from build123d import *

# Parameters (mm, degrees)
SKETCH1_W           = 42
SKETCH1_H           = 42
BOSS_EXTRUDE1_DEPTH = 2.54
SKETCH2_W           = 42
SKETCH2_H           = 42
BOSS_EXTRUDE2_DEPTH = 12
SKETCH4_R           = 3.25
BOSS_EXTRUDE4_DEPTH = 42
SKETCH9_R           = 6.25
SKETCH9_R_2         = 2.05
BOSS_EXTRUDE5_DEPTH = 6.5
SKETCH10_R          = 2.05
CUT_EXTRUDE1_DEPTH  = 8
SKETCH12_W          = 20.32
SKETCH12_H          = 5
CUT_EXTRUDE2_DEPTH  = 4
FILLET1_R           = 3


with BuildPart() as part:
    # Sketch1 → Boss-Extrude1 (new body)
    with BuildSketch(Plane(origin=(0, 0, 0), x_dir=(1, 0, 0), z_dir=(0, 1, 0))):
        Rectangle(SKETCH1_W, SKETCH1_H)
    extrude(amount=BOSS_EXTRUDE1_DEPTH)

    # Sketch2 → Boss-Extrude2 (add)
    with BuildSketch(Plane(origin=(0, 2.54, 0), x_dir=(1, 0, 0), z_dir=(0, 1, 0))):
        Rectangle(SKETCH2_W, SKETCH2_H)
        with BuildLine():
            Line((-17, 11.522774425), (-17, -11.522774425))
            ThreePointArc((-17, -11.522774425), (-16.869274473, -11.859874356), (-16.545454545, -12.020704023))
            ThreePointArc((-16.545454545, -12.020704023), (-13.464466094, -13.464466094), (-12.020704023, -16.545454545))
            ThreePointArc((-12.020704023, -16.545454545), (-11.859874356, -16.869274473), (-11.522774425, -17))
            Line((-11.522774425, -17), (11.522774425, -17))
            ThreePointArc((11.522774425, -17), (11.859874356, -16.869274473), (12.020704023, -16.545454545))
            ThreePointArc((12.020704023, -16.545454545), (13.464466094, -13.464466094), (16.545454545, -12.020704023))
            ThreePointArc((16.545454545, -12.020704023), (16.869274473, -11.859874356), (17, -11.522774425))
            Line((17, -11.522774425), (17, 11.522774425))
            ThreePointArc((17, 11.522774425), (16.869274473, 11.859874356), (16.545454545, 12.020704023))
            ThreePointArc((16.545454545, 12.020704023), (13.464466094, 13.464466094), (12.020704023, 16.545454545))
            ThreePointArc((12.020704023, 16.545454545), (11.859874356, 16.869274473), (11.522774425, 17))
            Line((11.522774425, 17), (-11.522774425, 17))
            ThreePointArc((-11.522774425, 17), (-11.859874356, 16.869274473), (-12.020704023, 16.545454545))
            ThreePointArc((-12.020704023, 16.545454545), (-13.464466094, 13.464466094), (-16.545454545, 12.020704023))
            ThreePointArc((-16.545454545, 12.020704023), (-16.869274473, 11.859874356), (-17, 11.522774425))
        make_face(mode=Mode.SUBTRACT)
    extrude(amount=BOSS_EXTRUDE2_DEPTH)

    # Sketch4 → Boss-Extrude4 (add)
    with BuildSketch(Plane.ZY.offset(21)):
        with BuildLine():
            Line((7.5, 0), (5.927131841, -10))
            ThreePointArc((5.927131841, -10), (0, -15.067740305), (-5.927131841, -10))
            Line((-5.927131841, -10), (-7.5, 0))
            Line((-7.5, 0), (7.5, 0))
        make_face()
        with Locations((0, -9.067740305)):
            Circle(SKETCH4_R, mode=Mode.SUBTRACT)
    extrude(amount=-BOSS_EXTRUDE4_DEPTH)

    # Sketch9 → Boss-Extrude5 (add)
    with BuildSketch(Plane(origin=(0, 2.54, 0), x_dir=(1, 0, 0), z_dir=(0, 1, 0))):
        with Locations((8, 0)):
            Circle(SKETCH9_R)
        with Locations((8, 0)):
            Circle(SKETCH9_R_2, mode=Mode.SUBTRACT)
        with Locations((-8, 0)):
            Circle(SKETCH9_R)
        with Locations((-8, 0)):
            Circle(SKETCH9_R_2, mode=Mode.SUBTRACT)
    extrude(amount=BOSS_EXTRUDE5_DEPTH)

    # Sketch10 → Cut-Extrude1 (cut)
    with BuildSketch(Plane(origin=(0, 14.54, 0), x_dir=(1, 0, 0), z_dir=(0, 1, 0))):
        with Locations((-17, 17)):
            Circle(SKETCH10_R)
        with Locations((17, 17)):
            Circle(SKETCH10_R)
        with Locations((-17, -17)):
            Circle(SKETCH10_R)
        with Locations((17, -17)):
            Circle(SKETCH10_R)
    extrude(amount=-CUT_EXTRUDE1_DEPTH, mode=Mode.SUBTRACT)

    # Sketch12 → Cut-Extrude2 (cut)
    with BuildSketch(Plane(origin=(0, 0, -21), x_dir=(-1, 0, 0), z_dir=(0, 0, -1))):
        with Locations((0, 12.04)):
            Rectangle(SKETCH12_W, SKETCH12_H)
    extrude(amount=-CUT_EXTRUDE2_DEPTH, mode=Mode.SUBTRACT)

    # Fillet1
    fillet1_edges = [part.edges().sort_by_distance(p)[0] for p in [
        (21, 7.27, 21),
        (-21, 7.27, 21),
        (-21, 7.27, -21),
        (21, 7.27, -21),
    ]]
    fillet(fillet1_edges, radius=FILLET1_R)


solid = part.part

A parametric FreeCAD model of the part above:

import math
import FreeCAD as App
import Part
import Sketcher
Q = App.Units.Quantity


def edges_at(feature, points):
    """Names of the edges that pass closest to the given points."""
    edges = feature.Shape.Edges
    near = lambda p: min(range(len(edges)), key=lambda i: edges[i].distToShape(Part.Vertex(*p))[0])
    return sorted({f"Edge{near(p) + 1}" for p in points})

doc = App.newDocument("Part")
params = doc.addObject("Spreadsheet::Sheet", "Params")
for row, (alias, value) in enumerate([
    ("sketch1_width", "42 mm"),
    ("pad1_length", "2.54 mm"),
    ("sketch2_radius", "5 mm"),
    ("sketch2_radius2", "0.5 mm"),
    ("sketch2_width", "42 mm"),
    ("pad2_length", "12 mm"),
    ("sketch3_radius", "6 mm"),
    ("sketch3_diameter", "6.5 mm"),
    ("sketch3_height", "15 mm"),
    ("pad3_length", "42 mm"),
    ("sketch4_diameter", "12.5 mm"),
    ("sketch4_diameter2", "4.1 mm"),
    ("pad4_length", "6.5 mm"),
    ("sketch5_diameter", "4.1 mm"),
    ("pocket1_length", "8 mm"),
    ("sketch6_height", "5 mm"),
    ("sketch6_width", "20.32 mm"),
    ("pocket2_length", "4 mm"),
    ("fillet_radius", "3 mm"),
], start=1):
    params.set(f"A{row}", alias)
    params.set(f"B{row}", "=" + value)
    params.setAlias(f"B{row}", alias)

body = doc.addObject("PartDesign::Body", "Body")

# Sketch on XZ plane
sketch1 = body.newObject("Sketcher::SketchObject", "Sketch")
sketch1.AttachmentSupport = (doc.getObject("XZ_Plane"), [""])
sketch1.MapMode = "FlatFace"
sketch1.addGeometry([
    Part.LineSegment(App.Vector(-21, -21, 0), App.Vector(-21, 21, 0)),
    Part.LineSegment(App.Vector(-21, 21, 0), App.Vector(21, 21, 0)),
    Part.LineSegment(App.Vector(21, 21, 0), App.Vector(21, -21, 0)),
    Part.LineSegment(App.Vector(21, -21, 0), App.Vector(-21, -21, 0)),
], False)
sketch1.addConstraint([
    Sketcher.Constraint("Coincident", 0, 2, 1, 1),
    Sketcher.Constraint("Coincident", 1, 2, 2, 1),
    Sketcher.Constraint("Coincident", 2, 2, 3, 1),
    Sketcher.Constraint("Coincident", 3, 2, 0, 1),
    Sketcher.Constraint("Vertical", 0),
    Sketcher.Constraint("Horizontal", 1),
    Sketcher.Constraint("Vertical", 2),
    Sketcher.Constraint("Horizontal", 3),
    Sketcher.Constraint("Symmetric", 0, 2, 2, 2, -1, 1),
    Sketcher.Constraint("Equal", 3, 0),
    Sketcher.Constraint("DistanceX", 1, 1, 1, 2, Q("42 mm")),
])
sketch1.setExpression("Constraints[10]", "Params.sketch1_width")
pad1 = body.newObject("PartDesign::Pad", "Pad")
pad1.Profile = sketch1
pad1.setExpression("Length", "Params.pad1_length")
pad1.Reversed = True

# Sketch on XZ plane
sketch2 = body.newObject("Sketcher::SketchObject", "Sketch001")
sketch2.AttachmentSupport = (doc.getObject("XZ_Plane"), [""])
sketch2.MapMode = "FlatFace"
sketch2.AttachmentOffset = App.Placement(App.Vector(0, 0, -2.54), App.Rotation())
sketch2.addGeometry([
    Part.LineSegment(App.Vector(-21, -21, 0), App.Vector(-21, 21, 0)),  # 0
    Part.LineSegment(App.Vector(-21, 21, 0), App.Vector(21, 21, 0)),  # 1
    Part.LineSegment(App.Vector(21, 21, 0), App.Vector(21, -21, 0)),  # 2
    Part.LineSegment(App.Vector(21, -21, 0), App.Vector(-21, -21, 0)),  # 3
    Part.LineSegment(App.Vector(-17, 11.5, 0), App.Vector(-17, -11.5, 0)),  # 4
    Part.ArcOfCircle(Part.Circle(App.Vector(-16.5, -11.5, 0), App.Vector(0, 0, 1), 0.5), math.radians(180), math.radians(265)),  # 5
    Part.ArcOfCircle(Part.Circle(App.Vector(-17, -17, 0), App.Vector(0, 0, 1), 5), math.radians(5), math.radians(85)),  # 6
    Part.ArcOfCircle(Part.Circle(App.Vector(-11.5, -16.5, 0), App.Vector(0, 0, 1), 0.5), math.radians(-175), math.radians(-90)),  # 7
    Part.LineSegment(App.Vector(-11.5, -17, 0), App.Vector(11.5, -17, 0)),  # 8
    Part.ArcOfCircle(Part.Circle(App.Vector(11.5, -16.5, 0), App.Vector(0, 0, 1), 0.5), math.radians(-90), math.radians(-5)),  # 9
    Part.ArcOfCircle(Part.Circle(App.Vector(17, -17, 0), App.Vector(0, 0, 1), 5), math.radians(95), math.radians(175)),  # 10
    Part.ArcOfCircle(Part.Circle(App.Vector(16.5, -11.5, 0), App.Vector(0, 0, 1), 0.5), math.radians(-85), math.radians(0)),  # 11
    Part.LineSegment(App.Vector(17, -11.5, 0), App.Vector(17, 11.5, 0)),  # 12
    Part.ArcOfCircle(Part.Circle(App.Vector(16.5, 11.5, 0), App.Vector(0, 0, 1), 0.5), math.radians(0), math.radians(85)),  # 13
    Part.ArcOfCircle(Part.Circle(App.Vector(17, 17, 0), App.Vector(0, 0, 1), 5), math.radians(-175), math.radians(-95)),  # 14
    Part.ArcOfCircle(Part.Circle(App.Vector(11.5, 16.5, 0), App.Vector(0, 0, 1), 0.5), math.radians(5), math.radians(90)),  # 15
    Part.LineSegment(App.Vector(11.5, 17, 0), App.Vector(-11.5, 17, 0)),  # 16
    Part.ArcOfCircle(Part.Circle(App.Vector(-11.5, 16.5, 0), App.Vector(0, 0, 1), 0.5), math.radians(90), math.radians(175)),  # 17
    Part.ArcOfCircle(Part.Circle(App.Vector(-17, 17, 0), App.Vector(0, 0, 1), 5), math.radians(-85), math.radians(-5)),  # 18
    Part.ArcOfCircle(Part.Circle(App.Vector(-16.5, 11.5, 0), App.Vector(0, 0, 1), 0.5), math.radians(95), math.radians(180)),  # 19
], False)
sketch2.addConstraint([
    Sketcher.Constraint("Coincident", 0, 2, 1, 1),
    Sketcher.Constraint("Coincident", 1, 2, 2, 1),
    Sketcher.Constraint("Coincident", 2, 2, 3, 1),
    Sketcher.Constraint("Coincident", 3, 2, 0, 1),
    Sketcher.Constraint("Tangent", 4, 2, 5, 1),
    Sketcher.Constraint("Tangent", 5, 2, 6, 2),
    Sketcher.Constraint("Tangent", 6, 1, 7, 1),
    Sketcher.Constraint("Tangent", 7, 2, 8, 1),
    Sketcher.Constraint("Tangent", 8, 2, 9, 1),
    Sketcher.Constraint("Tangent", 9, 2, 10, 2),
    Sketcher.Constraint("Tangent", 10, 1, 11, 1),
    Sketcher.Constraint("Tangent", 11, 2, 12, 1),
    Sketcher.Constraint("Tangent", 12, 2, 13, 1),
    Sketcher.Constraint("Tangent", 13, 2, 14, 2),
    Sketcher.Constraint("Tangent", 14, 1, 15, 1),
    Sketcher.Constraint("Tangent", 15, 2, 16, 1),
    Sketcher.Constraint("Tangent", 16, 2, 17, 1),
    Sketcher.Constraint("Tangent", 17, 2, 18, 2),
    Sketcher.Constraint("Tangent", 18, 1, 19, 1),
    Sketcher.Constraint("Tangent", 19, 2, 4, 1),
    Sketcher.Constraint("Vertical", 0),
    Sketcher.Constraint("Horizontal", 1),
    Sketcher.Constraint("Vertical", 2),
    Sketcher.Constraint("Horizontal", 3),
    Sketcher.Constraint("Vertical", 4),
    Sketcher.Constraint("Horizontal", 8),
    Sketcher.Constraint("Vertical", 12),
    Sketcher.Constraint("Horizontal", 16),
    Sketcher.Constraint("Equal", 5, 7),
    Sketcher.Constraint("Equal", 7, 9),
    Sketcher.Constraint("Equal", 6, 10),
    Sketcher.Constraint("Equal", 9, 11),
    Sketcher.Constraint("Equal", 11, 13),
    Sketcher.Constraint("Equal", 10, 14),
    Sketcher.Constraint("Equal", 13, 15),
    Sketcher.Constraint("Equal", 15, 17),
    Sketcher.Constraint("Equal", 14, 18),
    Sketcher.Constraint("Equal", 17, 19),
    Sketcher.Constraint("Symmetric", 5, 3, 13, 3, -1, 1),
    Sketcher.Constraint("Symmetric", 7, 3, 15, 3, -1, 1),
    Sketcher.Constraint("Symmetric", 10, 3, 18, 3, -1, 1),
    Sketcher.Constraint("Symmetric", 0, 2, 2, 2, -1, 1),
    Sketcher.Constraint("Symmetric", 6, 3, 10, 3, -2),
    Sketcher.Constraint("Horizontal", 10, 3, 7, 2),
    Sketcher.Constraint("Vertical", 18, 3, 4, 2),
    Sketcher.Constraint("Equal", 3, 0),
    Sketcher.Constraint("Equal", 16, 4),
    Sketcher.Constraint("Radius", 6, Q("5 mm")),
    Sketcher.Constraint("Radius", 5, Q("0.5 mm")),
    Sketcher.Constraint("DistanceX", 1, 1, 1, 2, Q("42 mm")),
    Sketcher.Constraint("DistanceX", 6, 3, -1, 1, Q("17 mm")),
])
sketch2.setExpression("Constraints[47]", "Params.sketch2_radius")
sketch2.setExpression("Constraints[48]", "Params.sketch2_radius2")
sketch2.setExpression("Constraints[49]", "Params.sketch2_width")
pad2 = body.newObject("PartDesign::Pad", "Pad001")
pad2.Profile = sketch2
pad2.setExpression("Length", "Params.pad2_length")
pad2.Reversed = True

# Sketch on YZ plane
sketch3 = body.newObject("Sketcher::SketchObject", "Sketch002")
sketch3.AttachmentSupport = (doc.getObject("YZ_Plane"), [""])
sketch3.MapMode = "FlatFace"
sketch3.AttachmentOffset = App.Placement(App.Vector(0, 0, -21), App.Rotation())
sketch3.addGeometry([
    Part.LineSegment(App.Vector(-10, 5.9, 0), App.Vector(0, 7.5, 0)),  # 0
    Part.LineSegment(App.Vector(0, 7.5, 0), App.Vector(0, -7.5, 0)),  # 1
    Part.LineSegment(App.Vector(0, -7.5, 0), App.Vector(-10, -5.9, 0)),  # 2
    Part.ArcOfCircle(Part.Circle(App.Vector(-9.1, 0, 0), App.Vector(0, 0, 1), 6), math.radians(99), math.radians(261)),  # 3
    Part.Circle(App.Vector(-9.1, 0, 0), App.Vector(0, 0, 1), 3.2),  # 4
], False)
sketch3.addConstraint([
    Sketcher.Constraint("Coincident", 0, 2, 1, 1),
    Sketcher.Constraint("Coincident", 1, 2, 2, 1),
    Sketcher.Constraint("Tangent", 2, 2, 3, 2),
    Sketcher.Constraint("Tangent", 3, 1, 0, 1),
    Sketcher.Constraint("Vertical", 1),
    Sketcher.Constraint("Coincident", 4, 3, 3, 3),
    Sketcher.Constraint("Symmetric", 0, 2, 1, 2, -1, 1),
    Sketcher.Constraint("PointOnObject", 3, 3, -1),
    Sketcher.Constraint("Radius", 3, Q("6 mm")),
    Sketcher.Constraint("Diameter", 4, Q("6.5 mm")),
    Sketcher.Constraint("DistanceY", 1, 2, 1, 1, Q("15 mm")),
    Sketcher.Constraint("DistanceX", 2, 2, -1, 1, Q("10 mm")),
])
sketch3.setExpression("Constraints[8]", "Params.sketch3_radius")
sketch3.setExpression("Constraints[9]", "Params.sketch3_diameter")
sketch3.setExpression("Constraints[10]", "Params.sketch3_height")
pad3 = body.newObject("PartDesign::Pad", "Pad002")
pad3.Profile = sketch3
pad3.setExpression("Length", "Params.pad3_length")

# Sketch on XZ plane
sketch4 = body.newObject("Sketcher::SketchObject", "Sketch003")
sketch4.AttachmentSupport = (doc.getObject("XZ_Plane"), [""])
sketch4.MapMode = "FlatFace"
sketch4.AttachmentOffset = App.Placement(App.Vector(0, 0, -2.54), App.Rotation())
sketch4.addGeometry([
    Part.Circle(App.Vector(8, 0, 0), App.Vector(0, 0, 1), 6.2),
    Part.Circle(App.Vector(8, 0, 0), App.Vector(0, 0, 1), 2),
    Part.Circle(App.Vector(-8, 0, 0), App.Vector(0, 0, 1), 6.2),
    Part.Circle(App.Vector(-8, 0, 0), App.Vector(0, 0, 1), 2),
], False)
sketch4.addConstraint([
    Sketcher.Constraint("Coincident", 1, 3, 0, 3),
    Sketcher.Constraint("Coincident", 3, 3, 2, 3),
    Sketcher.Constraint("Equal", 0, 2),
    Sketcher.Constraint("Equal", 1, 3),
    Sketcher.Constraint("Symmetric", 0, 3, 2, 3, -1, 1),
    Sketcher.Constraint("PointOnObject", 0, 3, -1),
    Sketcher.Constraint("Diameter", 0, Q("12.5 mm")),
    Sketcher.Constraint("Diameter", 1, Q("4.1 mm")),
    Sketcher.Constraint("DistanceX", -1, 1, 0, 3, Q("8 mm")),
])
sketch4.setExpression("Constraints[6]", "Params.sketch4_diameter")
sketch4.setExpression("Constraints[7]", "Params.sketch4_diameter2")
pad4 = body.newObject("PartDesign::Pad", "Pad003")
pad4.Profile = sketch4
pad4.setExpression("Length", "Params.pad4_length")
pad4.Reversed = True

# Sketch on XZ plane
sketch5 = body.newObject("Sketcher::SketchObject", "Sketch004")
sketch5.AttachmentSupport = (doc.getObject("XZ_Plane"), [""])
sketch5.MapMode = "FlatFace"
sketch5.AttachmentOffset = App.Placement(App.Vector(0, 0, -14.54), App.Rotation())
sketch5.addGeometry([
    Part.Circle(App.Vector(-17, -17, 0), App.Vector(0, 0, 1), 2),
    Part.Circle(App.Vector(17, -17, 0), App.Vector(0, 0, 1), 2),
    Part.Circle(App.Vector(-17, 17, 0), App.Vector(0, 0, 1), 2),
    Part.Circle(App.Vector(17, 17, 0), App.Vector(0, 0, 1), 2),
], False)
sketch5.addConstraint([
    Sketcher.Constraint("Equal", 0, 1),
    Sketcher.Constraint("Equal", 1, 2),
    Sketcher.Constraint("Equal", 2, 3),
    Sketcher.Constraint("Symmetric", 1, 3, 2, 3, -1, 1),
    Sketcher.Constraint("Symmetric", 0, 3, 3, 3, -1, 1),
    Sketcher.Constraint("Symmetric", 0, 3, 1, 3, -2),
    Sketcher.Constraint("Diameter", 0, Q("4.1 mm")),
    Sketcher.Constraint("DistanceX", 0, 3, -1, 1, Q("17 mm")),
    Sketcher.Constraint("DistanceY", 0, 3, -1, 1, Q("17 mm")),
])
sketch5.setExpression("Constraints[6]", "Params.sketch5_diameter")
pocket1 = body.newObject("PartDesign::Pocket", "Pocket")
pocket1.Profile = sketch5
pocket1.setExpression("Length", "Params.pocket1_length")
pocket1.Reversed = True

# Sketch on XY plane
sketch6 = body.newObject("Sketcher::SketchObject", "Sketch005")
sketch6.AttachmentSupport = (doc.getObject("XY_Plane"), [""])
sketch6.MapMode = "FlatFace"
sketch6.AttachmentOffset = App.Placement(App.Vector(0, 0, -21), App.Rotation())
sketch6.addGeometry([
    Part.LineSegment(App.Vector(10, 15, 0), App.Vector(10, 10, 0)),
    Part.LineSegment(App.Vector(10, 10, 0), App.Vector(-10, 10, 0)),
    Part.LineSegment(App.Vector(-10, 10, 0), App.Vector(-10, 15, 0)),
    Part.LineSegment(App.Vector(-10, 15, 0), App.Vector(10, 15, 0)),
], False)
sketch6.addConstraint([
    Sketcher.Constraint("Coincident", 0, 2, 1, 1),
    Sketcher.Constraint("Coincident", 1, 2, 2, 1),
    Sketcher.Constraint("Coincident", 2, 2, 3, 1),
    Sketcher.Constraint("Coincident", 3, 2, 0, 1),
    Sketcher.Constraint("Vertical", 0),
    Sketcher.Constraint("Horizontal", 1),
    Sketcher.Constraint("Vertical", 2),
    Sketcher.Constraint("Horizontal", 3),
    Sketcher.Constraint("DistanceY", 0, 2, 0, 1, Q("5 mm")),
    Sketcher.Constraint("DistanceX", 1, 2, 1, 1, Q("20.32 mm")),
    Sketcher.Constraint("DistanceX", -1, 1, 0, 2, Q("10.16 mm")),
    Sketcher.Constraint("DistanceY", -1, 1, 0, 2, Q("9.54 mm")),
])
sketch6.setExpression("Constraints[8]", "Params.sketch6_height")
sketch6.setExpression("Constraints[9]", "Params.sketch6_width")
pocket2 = body.newObject("PartDesign::Pocket", "Pocket001")
pocket2.Profile = sketch6
pocket2.setExpression("Length", "Params.pocket2_length")
pocket2.Reversed = True
doc.recompute()

fillet = body.newObject("PartDesign::Fillet", "Fillet")
fillet.Base = (pocket2, edges_at(pocket2, [
    (21, 7.27, 21),
    (-21, 7.27, 21),
    (-21, 7.27, -21),
    (21, 7.27, -21),
]))
fillet.setExpression("Radius", "Params.fillet_radius")

doc.recompute()
